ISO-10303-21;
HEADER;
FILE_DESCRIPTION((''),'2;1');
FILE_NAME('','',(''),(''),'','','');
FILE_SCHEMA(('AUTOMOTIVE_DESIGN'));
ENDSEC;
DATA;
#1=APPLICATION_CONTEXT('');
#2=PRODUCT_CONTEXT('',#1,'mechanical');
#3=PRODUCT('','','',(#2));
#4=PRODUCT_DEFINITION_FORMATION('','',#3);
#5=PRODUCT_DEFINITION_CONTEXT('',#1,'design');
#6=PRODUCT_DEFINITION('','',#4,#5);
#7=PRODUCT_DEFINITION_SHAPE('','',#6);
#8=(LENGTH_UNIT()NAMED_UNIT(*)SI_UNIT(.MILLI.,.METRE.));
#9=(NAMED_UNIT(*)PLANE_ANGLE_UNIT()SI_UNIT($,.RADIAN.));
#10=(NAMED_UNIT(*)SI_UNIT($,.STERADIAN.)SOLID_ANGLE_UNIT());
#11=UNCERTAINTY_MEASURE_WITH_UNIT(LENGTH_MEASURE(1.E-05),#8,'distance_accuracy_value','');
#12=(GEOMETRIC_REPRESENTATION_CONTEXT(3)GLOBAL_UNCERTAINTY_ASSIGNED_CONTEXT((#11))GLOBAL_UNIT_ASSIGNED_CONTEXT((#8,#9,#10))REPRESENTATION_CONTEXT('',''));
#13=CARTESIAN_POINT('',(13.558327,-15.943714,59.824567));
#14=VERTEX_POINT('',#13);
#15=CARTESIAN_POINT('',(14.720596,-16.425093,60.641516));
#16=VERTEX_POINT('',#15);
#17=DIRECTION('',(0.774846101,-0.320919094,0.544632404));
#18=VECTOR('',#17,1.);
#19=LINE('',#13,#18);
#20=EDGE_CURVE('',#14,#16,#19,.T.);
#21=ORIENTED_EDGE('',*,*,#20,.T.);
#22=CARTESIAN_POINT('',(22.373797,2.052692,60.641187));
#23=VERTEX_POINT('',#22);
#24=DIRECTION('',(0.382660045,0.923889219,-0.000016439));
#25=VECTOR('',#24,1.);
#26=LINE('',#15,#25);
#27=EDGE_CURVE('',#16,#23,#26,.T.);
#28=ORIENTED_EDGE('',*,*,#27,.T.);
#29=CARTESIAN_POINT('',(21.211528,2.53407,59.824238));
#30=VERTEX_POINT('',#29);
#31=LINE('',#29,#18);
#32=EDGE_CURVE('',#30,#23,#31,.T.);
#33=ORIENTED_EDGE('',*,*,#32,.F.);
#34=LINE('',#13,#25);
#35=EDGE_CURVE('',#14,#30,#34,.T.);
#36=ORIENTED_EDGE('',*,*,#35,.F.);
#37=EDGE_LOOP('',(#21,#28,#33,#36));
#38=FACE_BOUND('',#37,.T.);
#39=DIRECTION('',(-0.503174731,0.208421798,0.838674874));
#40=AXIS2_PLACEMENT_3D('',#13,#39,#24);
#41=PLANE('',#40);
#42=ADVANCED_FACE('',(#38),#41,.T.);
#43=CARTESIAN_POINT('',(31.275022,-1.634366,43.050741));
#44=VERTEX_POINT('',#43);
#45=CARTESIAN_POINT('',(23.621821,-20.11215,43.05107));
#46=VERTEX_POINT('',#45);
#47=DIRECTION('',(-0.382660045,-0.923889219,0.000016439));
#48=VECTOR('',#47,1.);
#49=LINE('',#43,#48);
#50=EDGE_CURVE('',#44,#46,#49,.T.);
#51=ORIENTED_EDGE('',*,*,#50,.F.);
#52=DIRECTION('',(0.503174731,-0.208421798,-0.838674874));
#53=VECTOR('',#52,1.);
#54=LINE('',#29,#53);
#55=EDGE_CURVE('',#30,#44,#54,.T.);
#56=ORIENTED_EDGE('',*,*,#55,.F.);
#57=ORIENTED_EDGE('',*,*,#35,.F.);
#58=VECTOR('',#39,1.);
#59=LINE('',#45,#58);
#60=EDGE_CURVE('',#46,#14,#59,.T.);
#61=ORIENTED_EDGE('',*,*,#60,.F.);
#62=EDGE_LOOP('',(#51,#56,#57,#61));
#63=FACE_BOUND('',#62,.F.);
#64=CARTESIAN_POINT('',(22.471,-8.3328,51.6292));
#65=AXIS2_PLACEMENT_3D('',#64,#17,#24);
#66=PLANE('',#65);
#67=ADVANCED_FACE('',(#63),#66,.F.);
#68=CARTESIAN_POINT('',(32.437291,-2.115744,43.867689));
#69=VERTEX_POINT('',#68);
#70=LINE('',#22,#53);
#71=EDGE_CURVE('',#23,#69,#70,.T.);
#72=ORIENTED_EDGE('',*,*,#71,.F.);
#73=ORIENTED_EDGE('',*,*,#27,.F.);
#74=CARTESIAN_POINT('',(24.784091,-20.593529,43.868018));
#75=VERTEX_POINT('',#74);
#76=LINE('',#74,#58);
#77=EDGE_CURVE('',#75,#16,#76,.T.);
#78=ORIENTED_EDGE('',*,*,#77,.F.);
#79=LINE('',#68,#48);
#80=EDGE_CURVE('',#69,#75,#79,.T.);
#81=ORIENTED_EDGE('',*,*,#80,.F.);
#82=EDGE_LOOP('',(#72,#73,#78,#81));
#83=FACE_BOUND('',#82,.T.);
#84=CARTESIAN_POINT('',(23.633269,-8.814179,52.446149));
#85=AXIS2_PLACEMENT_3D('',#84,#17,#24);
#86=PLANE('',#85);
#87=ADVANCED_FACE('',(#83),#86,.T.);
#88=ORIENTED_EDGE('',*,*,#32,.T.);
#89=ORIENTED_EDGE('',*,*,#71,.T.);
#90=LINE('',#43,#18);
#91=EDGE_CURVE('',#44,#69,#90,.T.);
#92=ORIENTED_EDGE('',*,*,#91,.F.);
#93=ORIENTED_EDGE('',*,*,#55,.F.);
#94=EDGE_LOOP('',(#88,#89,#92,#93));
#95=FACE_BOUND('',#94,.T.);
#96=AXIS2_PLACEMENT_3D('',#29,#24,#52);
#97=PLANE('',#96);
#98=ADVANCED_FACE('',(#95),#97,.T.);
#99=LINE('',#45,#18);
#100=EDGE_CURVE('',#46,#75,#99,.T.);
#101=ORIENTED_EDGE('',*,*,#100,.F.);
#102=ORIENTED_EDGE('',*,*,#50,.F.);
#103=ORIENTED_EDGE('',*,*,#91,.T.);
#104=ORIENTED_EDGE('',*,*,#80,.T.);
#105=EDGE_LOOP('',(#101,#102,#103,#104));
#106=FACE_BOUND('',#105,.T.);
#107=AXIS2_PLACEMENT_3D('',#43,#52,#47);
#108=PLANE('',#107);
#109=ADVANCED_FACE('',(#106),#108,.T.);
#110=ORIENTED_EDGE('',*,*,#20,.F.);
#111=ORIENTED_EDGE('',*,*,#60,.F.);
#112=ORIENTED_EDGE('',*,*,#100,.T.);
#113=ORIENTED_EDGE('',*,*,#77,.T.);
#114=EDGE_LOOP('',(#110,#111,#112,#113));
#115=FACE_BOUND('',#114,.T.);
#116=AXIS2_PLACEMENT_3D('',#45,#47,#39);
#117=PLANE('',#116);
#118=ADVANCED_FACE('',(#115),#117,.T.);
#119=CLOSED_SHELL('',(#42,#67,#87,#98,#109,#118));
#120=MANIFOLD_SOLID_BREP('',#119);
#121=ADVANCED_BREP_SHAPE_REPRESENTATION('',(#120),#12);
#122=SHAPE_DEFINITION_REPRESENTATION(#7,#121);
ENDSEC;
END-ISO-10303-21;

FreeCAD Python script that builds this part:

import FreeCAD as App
import Part
import Sketcher
from FreeCAD import Vector


def add_polygon(sketch, points):
    """Adds a closed chain of lines whose ends are joined by coincident constraints."""
    first, n = sketch.GeometryCount, len(points)
    for a, b in zip(points, points[1:] + points[:1]):
        sketch.addGeometry(Part.LineSegment(App.Vector(*a, 0), App.Vector(*b, 0)), False)
    for i in range(n):
        sketch.addConstraint(Sketcher.Constraint("Coincident", first + i, 2, first + (i + 1) % n, 1))

doc = App.newDocument("Part")
body = doc.addObject("PartDesign::Body", "Body")

# Sketch on an angled plane
sketch1 = doc.addObject("Sketcher::SketchObject", "Sketch")
body.addObject(sketch1)
sketch1.Placement = App.Placement(Vector(22.471, -8.3328, 51.6292), App.Rotation(Vector(0.382660045, 0.923889219, -0.000016439), Vector(-0.503174731, 0.208421798, 0.838674874), Vector(0.774846101, -0.320919094, 0.544632404), "ZXY"))
add_polygon(sketch1, [(10, 10), (-10, 10), (-10, -10), (10, -10)])  # lines 0-3
sketch1.addConstraint([
    Sketcher.Constraint("Horizontal", 0),
    Sketcher.Constraint("Vertical", 1),
    Sketcher.Constraint("Horizontal", 2),
    Sketcher.Constraint("Vertical", 3),
    Sketcher.Constraint("Equal", 2, 1),
    Sketcher.Constraint("DistanceX", 0, 2, 0, 1, 20.0),
    Sketcher.Constraint("DistanceX", 0, 2, -1, 1, 10.4423),
    Sketcher.Constraint("DistanceY", -1, 1, 0, 2, 9.7716),
])
pad1 = doc.addObject("PartDesign::Pad", "Pad")
body.addObject(pad1)
pad1.Profile = sketch1
pad1.Length = 1.5

doc.recompute()
